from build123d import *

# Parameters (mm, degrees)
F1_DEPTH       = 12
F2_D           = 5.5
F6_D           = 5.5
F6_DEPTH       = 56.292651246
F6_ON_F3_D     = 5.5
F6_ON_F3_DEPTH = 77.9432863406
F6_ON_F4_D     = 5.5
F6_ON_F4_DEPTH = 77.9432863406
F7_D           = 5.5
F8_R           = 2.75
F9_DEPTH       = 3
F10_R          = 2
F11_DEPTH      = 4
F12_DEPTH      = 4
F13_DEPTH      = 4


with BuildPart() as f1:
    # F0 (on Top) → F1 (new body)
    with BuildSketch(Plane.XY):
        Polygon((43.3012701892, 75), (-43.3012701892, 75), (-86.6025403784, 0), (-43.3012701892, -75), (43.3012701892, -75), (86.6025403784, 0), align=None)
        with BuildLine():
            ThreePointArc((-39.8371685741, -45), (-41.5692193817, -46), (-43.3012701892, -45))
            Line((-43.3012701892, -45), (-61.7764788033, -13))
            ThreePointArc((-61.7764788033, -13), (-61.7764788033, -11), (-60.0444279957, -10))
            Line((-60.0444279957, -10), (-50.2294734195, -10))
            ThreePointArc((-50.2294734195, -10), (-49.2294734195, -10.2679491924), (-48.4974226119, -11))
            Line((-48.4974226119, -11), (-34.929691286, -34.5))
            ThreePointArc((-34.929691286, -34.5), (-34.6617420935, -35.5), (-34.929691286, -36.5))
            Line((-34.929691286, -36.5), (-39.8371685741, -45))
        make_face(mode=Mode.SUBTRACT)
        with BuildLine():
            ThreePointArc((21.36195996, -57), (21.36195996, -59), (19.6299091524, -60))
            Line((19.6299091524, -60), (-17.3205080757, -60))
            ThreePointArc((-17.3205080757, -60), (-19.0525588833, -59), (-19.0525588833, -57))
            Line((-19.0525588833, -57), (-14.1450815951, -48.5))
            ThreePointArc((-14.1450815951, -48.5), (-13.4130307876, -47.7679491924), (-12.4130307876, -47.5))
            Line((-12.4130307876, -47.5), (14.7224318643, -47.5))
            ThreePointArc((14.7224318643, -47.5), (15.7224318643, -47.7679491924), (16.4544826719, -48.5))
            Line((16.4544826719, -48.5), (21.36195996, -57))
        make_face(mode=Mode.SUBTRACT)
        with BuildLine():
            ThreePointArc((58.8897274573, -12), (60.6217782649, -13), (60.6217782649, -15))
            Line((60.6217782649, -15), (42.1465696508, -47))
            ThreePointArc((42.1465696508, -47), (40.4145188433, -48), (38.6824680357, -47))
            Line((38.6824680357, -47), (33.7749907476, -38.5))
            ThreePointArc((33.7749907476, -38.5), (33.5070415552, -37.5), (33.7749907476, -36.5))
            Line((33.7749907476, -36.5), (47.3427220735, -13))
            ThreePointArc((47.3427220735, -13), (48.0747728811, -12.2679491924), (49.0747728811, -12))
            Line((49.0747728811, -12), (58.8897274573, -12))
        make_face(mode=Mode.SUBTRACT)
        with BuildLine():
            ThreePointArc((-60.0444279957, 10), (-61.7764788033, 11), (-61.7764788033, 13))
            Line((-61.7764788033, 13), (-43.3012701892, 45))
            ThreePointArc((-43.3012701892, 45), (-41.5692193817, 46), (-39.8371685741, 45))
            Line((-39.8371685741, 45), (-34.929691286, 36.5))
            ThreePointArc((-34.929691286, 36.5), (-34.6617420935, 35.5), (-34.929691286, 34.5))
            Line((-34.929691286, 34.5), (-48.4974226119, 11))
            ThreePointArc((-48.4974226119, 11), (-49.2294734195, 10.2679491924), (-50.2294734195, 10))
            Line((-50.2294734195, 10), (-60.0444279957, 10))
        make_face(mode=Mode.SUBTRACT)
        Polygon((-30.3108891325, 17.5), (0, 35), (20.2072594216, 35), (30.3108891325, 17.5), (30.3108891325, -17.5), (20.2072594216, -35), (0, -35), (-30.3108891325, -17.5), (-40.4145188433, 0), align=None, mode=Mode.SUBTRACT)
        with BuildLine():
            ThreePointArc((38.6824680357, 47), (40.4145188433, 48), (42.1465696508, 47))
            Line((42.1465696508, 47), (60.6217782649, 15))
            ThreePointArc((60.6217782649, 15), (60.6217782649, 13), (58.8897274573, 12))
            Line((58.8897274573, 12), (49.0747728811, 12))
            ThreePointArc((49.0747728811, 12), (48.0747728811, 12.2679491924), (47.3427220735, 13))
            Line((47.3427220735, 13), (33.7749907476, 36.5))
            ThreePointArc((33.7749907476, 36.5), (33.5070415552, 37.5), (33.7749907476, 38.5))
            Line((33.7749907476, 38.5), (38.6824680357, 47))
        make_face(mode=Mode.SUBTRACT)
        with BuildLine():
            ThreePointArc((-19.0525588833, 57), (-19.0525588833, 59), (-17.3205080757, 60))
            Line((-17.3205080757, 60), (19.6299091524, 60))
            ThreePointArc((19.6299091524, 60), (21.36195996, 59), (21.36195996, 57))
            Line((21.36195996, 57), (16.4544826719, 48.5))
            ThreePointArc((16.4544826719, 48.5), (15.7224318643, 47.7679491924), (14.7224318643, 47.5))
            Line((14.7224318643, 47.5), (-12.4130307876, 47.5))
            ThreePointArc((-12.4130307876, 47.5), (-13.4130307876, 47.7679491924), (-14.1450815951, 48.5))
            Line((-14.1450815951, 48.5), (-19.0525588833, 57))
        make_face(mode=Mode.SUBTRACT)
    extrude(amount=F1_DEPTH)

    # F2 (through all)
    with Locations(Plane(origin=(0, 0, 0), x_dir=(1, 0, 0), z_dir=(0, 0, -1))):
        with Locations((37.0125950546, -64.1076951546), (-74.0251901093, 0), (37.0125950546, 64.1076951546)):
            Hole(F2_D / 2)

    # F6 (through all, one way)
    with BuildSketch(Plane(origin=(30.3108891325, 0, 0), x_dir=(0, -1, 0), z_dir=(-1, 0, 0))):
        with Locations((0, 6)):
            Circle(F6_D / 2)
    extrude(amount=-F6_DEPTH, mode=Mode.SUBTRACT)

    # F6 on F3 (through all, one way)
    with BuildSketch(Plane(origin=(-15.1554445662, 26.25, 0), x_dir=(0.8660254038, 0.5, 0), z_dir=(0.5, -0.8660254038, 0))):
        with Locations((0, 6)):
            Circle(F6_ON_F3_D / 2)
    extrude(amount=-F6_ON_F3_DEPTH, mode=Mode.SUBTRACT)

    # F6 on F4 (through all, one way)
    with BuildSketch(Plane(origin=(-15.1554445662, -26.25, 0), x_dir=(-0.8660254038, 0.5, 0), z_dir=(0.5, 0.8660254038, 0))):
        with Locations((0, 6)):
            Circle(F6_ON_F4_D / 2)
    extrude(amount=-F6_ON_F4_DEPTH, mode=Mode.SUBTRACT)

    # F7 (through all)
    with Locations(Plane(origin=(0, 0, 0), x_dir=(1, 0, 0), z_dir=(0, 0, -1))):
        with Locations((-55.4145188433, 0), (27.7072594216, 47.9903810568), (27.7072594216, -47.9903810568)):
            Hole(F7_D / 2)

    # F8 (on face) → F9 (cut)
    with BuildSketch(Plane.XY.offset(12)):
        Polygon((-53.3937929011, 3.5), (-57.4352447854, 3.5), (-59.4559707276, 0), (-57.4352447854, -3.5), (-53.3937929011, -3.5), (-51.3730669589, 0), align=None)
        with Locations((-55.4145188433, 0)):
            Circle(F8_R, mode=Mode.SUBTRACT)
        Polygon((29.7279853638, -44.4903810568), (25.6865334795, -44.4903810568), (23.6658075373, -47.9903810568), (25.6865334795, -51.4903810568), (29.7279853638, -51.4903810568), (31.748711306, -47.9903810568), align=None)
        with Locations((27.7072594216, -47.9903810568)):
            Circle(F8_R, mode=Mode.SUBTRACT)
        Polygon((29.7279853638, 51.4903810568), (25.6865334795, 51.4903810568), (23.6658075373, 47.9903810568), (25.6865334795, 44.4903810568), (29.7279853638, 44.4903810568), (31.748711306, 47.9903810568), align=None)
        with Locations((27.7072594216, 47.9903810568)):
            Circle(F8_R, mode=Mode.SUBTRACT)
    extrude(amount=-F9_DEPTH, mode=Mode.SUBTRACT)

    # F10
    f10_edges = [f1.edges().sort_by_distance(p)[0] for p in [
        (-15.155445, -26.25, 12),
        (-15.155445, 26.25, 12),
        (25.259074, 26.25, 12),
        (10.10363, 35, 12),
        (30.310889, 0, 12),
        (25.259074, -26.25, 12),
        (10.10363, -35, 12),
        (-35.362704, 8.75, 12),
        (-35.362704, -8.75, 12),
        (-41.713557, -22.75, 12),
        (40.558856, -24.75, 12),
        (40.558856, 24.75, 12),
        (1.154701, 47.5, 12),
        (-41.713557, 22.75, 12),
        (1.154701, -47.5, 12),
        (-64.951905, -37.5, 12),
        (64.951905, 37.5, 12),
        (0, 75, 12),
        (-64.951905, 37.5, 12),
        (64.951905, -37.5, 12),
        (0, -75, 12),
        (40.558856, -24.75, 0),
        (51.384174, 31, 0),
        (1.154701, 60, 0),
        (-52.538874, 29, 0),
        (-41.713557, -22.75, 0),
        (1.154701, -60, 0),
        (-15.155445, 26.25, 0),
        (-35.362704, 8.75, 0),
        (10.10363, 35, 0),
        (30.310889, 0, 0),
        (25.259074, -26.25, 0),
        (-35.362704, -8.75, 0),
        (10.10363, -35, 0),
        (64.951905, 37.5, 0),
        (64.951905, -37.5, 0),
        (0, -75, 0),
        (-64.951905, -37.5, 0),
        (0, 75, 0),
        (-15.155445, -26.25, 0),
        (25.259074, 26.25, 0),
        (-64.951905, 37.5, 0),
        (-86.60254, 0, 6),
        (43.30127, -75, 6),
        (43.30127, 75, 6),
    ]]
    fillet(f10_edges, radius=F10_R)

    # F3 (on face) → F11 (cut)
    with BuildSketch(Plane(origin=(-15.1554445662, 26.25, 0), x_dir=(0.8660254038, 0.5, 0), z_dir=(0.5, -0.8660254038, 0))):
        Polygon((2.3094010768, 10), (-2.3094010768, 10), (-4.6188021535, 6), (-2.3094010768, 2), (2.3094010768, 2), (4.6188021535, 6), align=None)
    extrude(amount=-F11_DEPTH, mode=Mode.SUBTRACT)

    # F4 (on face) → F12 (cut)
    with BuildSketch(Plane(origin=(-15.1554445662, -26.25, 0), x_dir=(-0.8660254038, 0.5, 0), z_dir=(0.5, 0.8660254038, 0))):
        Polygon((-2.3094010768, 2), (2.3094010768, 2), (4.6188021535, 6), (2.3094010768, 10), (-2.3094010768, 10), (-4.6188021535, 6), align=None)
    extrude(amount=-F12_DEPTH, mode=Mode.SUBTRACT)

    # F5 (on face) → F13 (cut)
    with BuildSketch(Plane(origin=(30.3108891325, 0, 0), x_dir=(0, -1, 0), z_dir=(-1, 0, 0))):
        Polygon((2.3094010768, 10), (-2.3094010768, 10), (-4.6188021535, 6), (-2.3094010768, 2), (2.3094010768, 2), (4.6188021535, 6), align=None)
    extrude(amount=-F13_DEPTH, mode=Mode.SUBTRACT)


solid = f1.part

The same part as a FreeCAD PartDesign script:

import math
import FreeCAD as App
import Part
import Sketcher

V = App.Vector
Q = App.Units.Quantity


def edges_at(feature, points):
    """Names of the edges that pass closest to the given points."""
    edges = feature.Shape.Edges
    near = lambda p: min(range(len(edges)), key=lambda i: edges[i].distToShape(Part.Vertex(*p))[0])
    return sorted({f"Edge{near(p) + 1}" for p in points})

doc = App.newDocument("Part")
body = doc.addObject("PartDesign::Body", "Body")

sketch1 = doc.addObject("Sketcher::SketchObject", "Sketch")
body.addObject(sketch1)
sketch1.AttachmentSupport = (doc.XY_Plane, [""])
sketch1.MapMode = "FlatFace"
sketch1.addGeometry([
    Part.LineSegment(V(43.3, 75, 0), V(-43.3, 75, 0)),
    Part.LineSegment(V(-43.3, 75, 0), V(-86.6, 0, 0)),
    Part.LineSegment(V(-86.6, 0, 0), V(-43.3, -75, 0)),
    Part.LineSegment(V(-43.3, -75, 0), V(43.3, -75, 0)),
    Part.LineSegment(V(43.3, -75, 0), V(86.6, 0, 0)),
    Part.LineSegment(V(86.6, 0, 0), V(43.3, 75, 0)),
    Part.LineSegment(V(-34.9, -36.5, 0), V(-39.8, -45, 0)),
    Part.ArcOfCircle(Part.Circle(V(-41.6, -44, 0), V(0, 0, 1), 2), math.radians(-150), math.radians(-30)),
    Part.LineSegment(V(-43.3, -45, 0), V(-61.8, -13, 0)),
    Part.ArcOfCircle(Part.Circle(V(-60, -12, 0), V(0, 0, 1), 2), math.radians(90), math.radians(210)),
    Part.LineSegment(V(-60, -10, 0), V(-50.2, -10, 0)),
    Part.ArcOfCircle(Part.Circle(V(-50.2, -12, 0), V(0, 0, 1), 2), math.radians(30), math.radians(90)),
    Part.LineSegment(V(-48.5, -11, 0), V(-34.9, -34.5, 0)),
    Part.ArcOfCircle(Part.Circle(V(-36.7, -35.5, 0), V(0, 0, 1), 2), math.radians(-30), math.radians(30)),
    Part.LineSegment(V(16.5, -48.5, 0), V(21.4, -57, 0)),
    Part.ArcOfCircle(Part.Circle(V(19.6, -58, 0), V(0, 0, 1), 2), math.radians(-90), math.radians(30)),
    Part.LineSegment(V(19.6, -60, 0), V(-17.3, -60, 0)),
    Part.ArcOfCircle(Part.Circle(V(-17.3, -58, 0), V(0, 0, 1), 2), math.radians(150), math.radians(270)),
    Part.LineSegment(V(-19.1, -57, 0), V(-14.1, -48.5, 0)),
    Part.ArcOfCircle(Part.Circle(V(-12.4, -49.5, 0), V(0, 0, 1), 2), math.radians(90), math.radians(150)),
    Part.LineSegment(V(-12.4, -47.5, 0), V(14.7, -47.5, 0)),
    Part.ArcOfCircle(Part.Circle(V(14.7, -49.5, 0), V(0, 0, 1), 2), math.radians(30), math.radians(90)),
    Part.LineSegment(V(49.1, -12, 0), V(58.9, -12, 0)),
    Part.ArcOfCircle(Part.Circle(V(58.9, -14, 0), V(0, 0, 1), 2), math.radians(-30), math.radians(90)),
    Part.LineSegment(V(60.6, -15, 0), V(42.1, -47, 0)),
    Part.ArcOfCircle(Part.Circle(V(40.4, -46, 0), V(0, 0, 1), 2), math.radians(-150), math.radians(-30)),
    Part.LineSegment(V(38.7, -47, 0), V(33.8, -38.5, 0)),
    Part.ArcOfCircle(Part.Circle(V(35.5, -37.5, 0), V(0, 0, 1), 2), math.radians(150), math.radians(210)),
    Part.LineSegment(V(33.8, -36.5, 0), V(47.3, -13, 0)),
    Part.ArcOfCircle(Part.Circle(V(49.1, -14, 0), V(0, 0, 1), 2), math.radians(90), math.radians(150)),
    Part.LineSegment(V(-50.2, 10, 0), V(-60, 10, 0)),
    Part.ArcOfCircle(Part.Circle(V(-60, 12, 0), V(0, 0, 1), 2), math.radians(150), math.radians(270)),
    Part.LineSegment(V(-61.8, 13, 0), V(-43.3, 45, 0)),
    Part.ArcOfCircle(Part.Circle(V(-41.6, 44, 0), V(0, 0, 1), 2), math.radians(30), math.radians(150)),
    Part.LineSegment(V(-39.8, 45, 0), V(-34.9, 36.5, 0)),
    Part.ArcOfCircle(Part.Circle(V(-36.7, 35.5, 0), V(0, 0, 1), 2), math.radians(-30), math.radians(30)),
    Part.LineSegment(V(-34.9, 34.5, 0), V(-48.5, 11, 0)),
    Part.ArcOfCircle(Part.Circle(V(-50.2, 12, 0), V(0, 0, 1), 2), math.radians(-90), math.radians(-30)),
    Part.LineSegment(V(-40.4, 0, 0), V(-30.3, 17.5, 0)),
    Part.LineSegment(V(-30.3, 17.5, 0), V(0, 35, 0)),
    Part.LineSegment(V(0, 35, 0), V(20.2, 35, 0)),
    Part.LineSegment(V(20.2, 35, 0), V(30.3, 17.5, 0)),
    Part.LineSegment(V(30.3, 17.5, 0), V(30.3, -17.5, 0)),
    Part.LineSegment(V(30.3, -17.5, 0), V(20.2, -35, 0)),
    Part.LineSegment(V(20.2, -35, 0), V(0, -35, 0)),
    Part.LineSegment(V(0, -35, 0), V(-30.3, -17.5, 0)),
    Part.LineSegment(V(-30.3, -17.5, 0), V(-40.4, 0, 0)),
    Part.LineSegment(V(-14.1, 48.5, 0), V(-19.1, 57, 0)),
    Part.ArcOfCircle(Part.Circle(V(-17.3, 58, 0), V(0, 0, 1), 2), math.radians(90), math.radians(210)),
    Part.LineSegment(V(-17.3, 60, 0), V(19.6, 60, 0)),
    Part.ArcOfCircle(Part.Circle(V(19.6, 58, 0), V(0, 0, 1), 2), math.radians(-30), math.radians(90)),
    Part.LineSegment(V(21.4, 57, 0), V(16.5, 48.5, 0)),
    Part.ArcOfCircle(Part.Circle(V(14.7, 49.5, 0), V(0, 0, 1), 2), math.radians(-90), math.radians(-30)),
    Part.LineSegment(V(14.7, 47.5, 0), V(-12.4, 47.5, 0)),
    Part.ArcOfCircle(Part.Circle(V(-12.4, 49.5, 0), V(0, 0, 1), 2), math.radians(-150), math.radians(-90)),
    Part.LineSegment(V(33.8, 38.5, 0), V(38.7, 47, 0)),
    Part.ArcOfCircle(Part.Circle(V(40.4, 46, 0), V(0, 0, 1), 2), math.radians(30), math.radians(150)),
    Part.LineSegment(V(42.1, 47, 0), V(60.6, 15, 0)),
    Part.ArcOfCircle(Part.Circle(V(58.9, 14, 0), V(0, 0, 1), 2), math.radians(-90), math.radians(30)),
    Part.LineSegment(V(58.9, 12, 0), V(49.1, 12, 0)),
    Part.ArcOfCircle(Part.Circle(V(49.1, 14, 0), V(0, 0, 1), 2), math.radians(-150), math.radians(-90)),
    Part.LineSegment(V(47.3, 13, 0), V(33.8, 36.5, 0)),
    Part.ArcOfCircle(Part.Circle(V(35.5, 37.5, 0), V(0, 0, 1), 2), math.radians(150), math.radians(210)),
], False)
sketch1.addConstraint([
    Sketcher.Constraint("Coincident", 0, 2, 1, 1),
    Sketcher.Constraint("Coincident", 1, 2, 2, 1),
    Sketcher.Constraint("Coincident", 2, 2, 3, 1),
    Sketcher.Constraint("Coincident", 3, 2, 4, 1),
    Sketcher.Constraint("Coincident", 4, 2, 5, 1),
    Sketcher.Constraint("Coincident", 5, 2, 0, 1),
    Sketcher.Constraint("Tangent", 6, 2, 7, 2),
    Sketcher.Constraint("Tangent", 7, 1, 8, 1),
    Sketcher.Constraint("Tangent", 8, 2, 9, 2),
    Sketcher.Constraint("Tangent", 9, 1, 10, 1),
    Sketcher.Constraint("Tangent", 10, 2, 11, 2),
    Sketcher.Constraint("Tangent", 11, 1, 12, 1),
    Sketcher.Constraint("Tangent", 12, 2, 13, 2),
    Sketcher.Constraint("Tangent", 13, 1, 6, 1),
    Sketcher.Constraint("Tangent", 14, 2, 15, 2),
    Sketcher.Constraint("Tangent", 15, 1, 16, 1),
    Sketcher.Constraint("Tangent", 16, 2, 17, 2),
    Sketcher.Constraint("Tangent", 17, 1, 18, 1),
    Sketcher.Constraint("Tangent", 18, 2, 19, 2),
    Sketcher.Constraint("Tangent", 19, 1, 20, 1),
    Sketcher.Constraint("Tangent", 20, 2, 21, 2),
    Sketcher.Constraint("Tangent", 21, 1, 14, 1),
    Sketcher.Constraint("Tangent", 22, 2, 23, 2),
    Sketcher.Constraint("Tangent", 23, 1, 24, 1),
    Sketcher.Constraint("Tangent", 24, 2, 25, 2),
    Sketcher.Constraint("Tangent", 25, 1, 26, 1),
    Sketcher.Constraint("Tangent", 26, 2, 27, 2),
    Sketcher.Constraint("Tangent", 27, 1, 28, 1),
    Sketcher.Constraint("Tangent", 28, 2, 29, 2),
    Sketcher.Constraint("Tangent", 29, 1, 22, 1),
    Sketcher.Constraint("Tangent", 30, 2, 31, 2),
    Sketcher.Constraint("Tangent", 31, 1, 32, 1),
    Sketcher.Constraint("Tangent", 32, 2, 33, 2),
    Sketcher.Constraint("Tangent", 33, 1, 34, 1),
    Sketcher.Constraint("Tangent", 34, 2, 35, 2),
    Sketcher.Constraint("Tangent", 35, 1, 36, 1),
    Sketcher.Constraint("Tangent", 36, 2, 37, 2),
    Sketcher.Constraint("Tangent", 37, 1, 30, 1),
    Sketcher.Constraint("Coincident", 38, 2, 39, 1),
    Sketcher.Constraint("Coincident", 39, 2, 40, 1),
    Sketcher.Constraint("Coincident", 40, 2, 41, 1),
    Sketcher.Constraint("Coincident", 41, 2, 42, 1),
    Sketcher.Constraint("Coincident", 42, 2, 43, 1),
    Sketcher.Constraint("Coincident", 43, 2, 44, 1),
    Sketcher.Constraint("Coincident", 44, 2, 45, 1),
    Sketcher.Constraint("Coincident", 45, 2, 46, 1),
    Sketcher.Constraint("Coincident", 46, 2, 38, 1),
    Sketcher.Constraint("Tangent", 47, 2, 48, 2),
    Sketcher.Constraint("Tangent", 48, 1, 49, 1),
    Sketcher.Constraint("Tangent", 49, 2, 50, 2),
    Sketcher.Constraint("Tangent", 50, 1, 51, 1),
    Sketcher.Constraint("Tangent", 51, 2, 52, 2),
    Sketcher.Constraint("Tangent", 52, 1, 53, 1),
    Sketcher.Constraint("Tangent", 53, 2, 54, 2),
    Sketcher.Constraint("Tangent", 54, 1, 47, 1),
    Sketcher.Constraint("Tangent", 55, 2, 56, 2),
    Sketcher.Constraint("Tangent", 56, 1, 57, 1),
    Sketcher.Constraint("Tangent", 57, 2, 58, 2),
    Sketcher.Constraint("Tangent", 58, 1, 59, 1),
    Sketcher.Constraint("Tangent", 59, 2, 60, 2),
    Sketcher.Constraint("Tangent", 60, 1, 61, 1),
    Sketcher.Constraint("Tangent", 61, 2, 62, 2),
    Sketcher.Constraint("Tangent", 62, 1, 55, 1),
    Sketcher.Constraint("Horizontal", 0),
    Sketcher.Constraint("Horizontal", 3),
    Sketcher.Constraint("Horizontal", 10),
    Sketcher.Constraint("Horizontal", 16),
    Sketcher.Constraint("Horizontal", 20),
    Sketcher.Constraint("Horizontal", 22),
    Sketcher.Constraint("Horizontal", 30),
    Sketcher.Constraint("Horizontal", 40),
    Sketcher.Constraint("Vertical", 42),
    Sketcher.Constraint("Horizontal", 44),
    Sketcher.Constraint("Horizontal", 49),
    Sketcher.Constraint("Horizontal", 53),
    Sketcher.Constraint("Horizontal", 59),
    Sketcher.Constraint("Equal", 7, 9),
    Sketcher.Constraint("Equal", 9, 11),
    Sketcher.Constraint("Equal", 11, 13),
    Sketcher.Constraint("Equal", 13, 15),
    Sketcher.Constraint("Equal", 15, 17),
    Sketcher.Constraint("Equal", 17, 19),
    Sketcher.Constraint("Equal", 19, 21),
    Sketcher.Constraint("Equal", 21, 23),
    Sketcher.Constraint("Equal", 23, 25),
    Sketcher.Constraint("Equal", 25, 27),
    Sketcher.Constraint("Equal", 27, 29),
    Sketcher.Constraint("Equal", 29, 31),
    Sketcher.Constraint("Equal", 31, 33),
    Sketcher.Constraint("Equal", 33, 35),
    Sketcher.Constraint("Equal", 35, 37),
    Sketcher.Constraint("Equal", 37, 48),
    Sketcher.Constraint("Equal", 48, 50),
    Sketcher.Constraint("Equal", 50, 52),
    Sketcher.Constraint("Equal", 52, 54),
    Sketcher.Constraint("Equal", 54, 56),
    Sketcher.Constraint("Equal", 56, 58),
    Sketcher.Constraint("Equal", 58, 60),
    Sketcher.Constraint("Equal", 60, 62),
    Sketcher.Constraint("Symmetric", 0, 2, 3, 2, -1, 1),
    Sketcher.Constraint("Symmetric", 1, 2, 4, 2, -1, 1),
    Sketcher.Constraint("Symmetric", 38, 2, 42, 2, -1, 1),
    Sketcher.Constraint("Symmetric", 39, 2, 44, 2, -1, 1),
    Sketcher.Constraint("Symmetric", 41, 2, 45, 2, -1, 1),
    Sketcher.Constraint("Symmetric", 9, 3, 31, 3, -1),
    Sketcher.Constraint("Symmetric", 7, 3, 33, 3, -1),
    Sketcher.Constraint("Symmetric", 13, 3, 35, 3, -1),
    Sketcher.Constraint("Symmetric", 17, 3, 48, 3, -1),
    Sketcher.Constraint("Symmetric", 21, 3, 52, 3, -1),
    Sketcher.Constraint("Symmetric", 25, 3, 56, 3, -1),
    Sketcher.Constraint("Symmetric", 23, 3, 58, 3, -1),
    Sketcher.Constraint("Symmetric", 27, 3, 62, 3, -1),
    Sketcher.Constraint("PointOnObject", 1, 2, -1),
    Sketcher.Constraint("PointOnObject", 39, 2, -2),
    Sketcher.Constraint("PointOnObject", 46, 2, -1),
    Sketcher.Constraint("Parallel", 2, 5),
    Sketcher.Constraint("Parallel", 4, 6),
    Sketcher.Constraint("Parallel", 5, 8),
    Sketcher.Constraint("Parallel", 8, 12),
    Sketcher.Constraint("Parallel", 12, 14),
    Sketcher.Constraint("Parallel", 6, 18),
    Sketcher.Constraint("Parallel", 18, 24),
    Sketcher.Constraint("Parallel", 14, 26),
    Sketcher.Constraint("Parallel", 24, 28),
    Sketcher.Constraint("Parallel", 28, 32),
    Sketcher.Constraint("Parallel", 32, 36),
    Sketcher.Constraint("Parallel", 36, 38),
    Sketcher.Constraint("Perpendicular", 34, 39),
    Sketcher.Constraint("Perpendicular", 39, 41),
    Sketcher.Constraint("Parallel", 38, 43),
    Sketcher.Constraint("Perpendicular", 43, 45),
    Sketcher.Constraint("Parallel", 46, 47),
    Sketcher.Constraint("Perpendicular", 45, 51),
    Sketcher.Constraint("Parallel", 57, 61),
    Sketcher.Constraint("Horizontal", 11, 3, 22, 2),
    Sketcher.Constraint("Horizontal", 13, 1, 27, 1),
    Sketcher.Constraint("Horizontal", 8, 2, 28, 2),
    Sketcher.Constraint("Vertical", 2, 2, 7, 1),
    Sketcher.Constraint("Equal", 10, 22),
    Sketcher.Constraint("Equal", 6, 14),
    Sketcher.Constraint("Equal", 38, 41),
    Sketcher.Constraint("Radius", 7, 2.0),
    Sketcher.Constraint("DistanceY", 42, 2, 42, 1, 35.0),
    Sketcher.Constraint("DistanceY", 7, 3, -1, 1, 44.0),
    Sketcher.Constraint("DistanceY", 9, 3, -1, 1, 12.0),
    Sketcher.Constraint("DistanceY", 15, 3, -1, 1, 58.0),
    Sketcher.Constraint("DistanceY", -1, 1, 0, 2, 75.0),
    Sketcher.Constraint("DistanceY", 13, 3, -1, 1, 35.5),
    Sketcher.Constraint("DistanceX", 0, 2, 0, 1, 86.60254),
    Sketcher.Constraint("DistanceX", 16, 2, 16, 1, 36.950417),
    Sketcher.Constraint("DistanceX", -1, 1, 15, 3, 19.629909),
    Sketcher.Constraint("DistanceX", -1, 1, 25, 3, 40.414519),
])
pad1 = doc.addObject("PartDesign::Pad", "Pad")
body.addObject(pad1)
pad1.Profile = sketch1
pad1.Length = 12

sketch2 = doc.addObject("Sketcher::SketchObject", "Sketch001")
body.addObject(sketch2)
sketch2.AttachmentSupport = (doc.XY_Plane, [""])
sketch2.MapMode = "FlatFace"
sketch2.addGeometry([
    Part.Circle(V(37, 64.1, 0), V(0, 0, 1), 2.8),
    Part.Circle(V(-74, 0, 0), V(0, 0, 1), 2.8),
    Part.Circle(V(37, -64.1, 0), V(0, 0, 1), 2.8),
], False)
sketch2.addConstraint([
    Sketcher.Constraint("Equal", 0, 1),
    Sketcher.Constraint("Equal", 1, 2),
    Sketcher.Constraint("Symmetric", 0, 3, 2, 3, -1),
    Sketcher.Constraint("PointOnObject", 1, 3, -1),
    Sketcher.Constraint("Diameter", 0, 5.5),
    Sketcher.Constraint("DistanceX", 1, 3, -1, 1, 74.02519),
    Sketcher.Constraint("DistanceY", 2, 3, 0, 3, 128.21539),
    Sketcher.Constraint("DistanceX", -1, 1, 0, 3, 37.012595),
])
doc.recompute()
hole = doc.addObject("PartDesign::Hole", "Hole")
body.addObject(hole)
hole.Profile = sketch2
hole.ThreadType = "None"
hole.Diameter = 5.5
hole.DepthType = "ThroughAll"
hole.Reversed = True

sketch3 = doc.addObject("Sketcher::SketchObject", "Sketch002")
body.addObject(sketch3)
sketch3.AttachmentSupport = (doc.YZ_Plane, [""])
sketch3.MapMode = "FlatFace"
sketch3.AttachmentOffset = App.Placement(V(0, 0, 30.310889), App.Rotation())
sketch3.addGeometry(Part.Circle(V(0, 6, 0), V(0, 0, 1), 2.8), False)
sketch3.addConstraint([
    Sketcher.Constraint("PointOnObject", 0, 3, -2),
    Sketcher.Constraint("Diameter", 0, 5.5),
    Sketcher.Constraint("DistanceY", -1, 1, 0, 3, 6.0),
])
pocket1 = doc.addObject("PartDesign::Pocket", "Pocket")
body.addObject(pocket1)
pocket1.Profile = sketch3
pocket1.Type = "ThroughAll"
pocket1.Reversed = True

sketch4 = doc.addObject("Sketcher::SketchObject", "Sketch003")
body.addObject(sketch4)
sketch4.Placement = App.Placement(V(-15.155445, 26.25, 0), App.Rotation(V(0.866025404, 0.5, 0), V(0, 0, 1), V(0.5, -0.866025404, 0), "ZXY"))
sketch4.addGeometry(Part.Circle(V(0, 6, 0), V(0, 0, 1), 2.8), False)
sketch4.addConstraint([
    Sketcher.Constraint("PointOnObject", 0, 3, -2),
    Sketcher.Constraint("Diameter", 0, 5.5),
    Sketcher.Constraint("DistanceY", -1, 1, 0, 3, 6.0),
])
pocket2 = doc.addObject("PartDesign::Pocket", "Pocket001")
body.addObject(pocket2)
pocket2.Profile = sketch4
pocket2.Type = "ThroughAll"

sketch5 = doc.addObject("Sketcher::SketchObject", "Sketch004")
body.addObject(sketch5)
sketch5.Placement = App.Placement(V(-15.155445, -26.25, 0), App.Rotation(V(-0.866025404, 0.5, 0), V(0, 0, 1), V(0.5, 0.866025404, 0), "ZXY"))
sketch5.addGeometry(Part.Circle(V(0, 6, 0), V(0, 0, 1), 2.8), False)
sketch5.addConstraint([
    Sketcher.Constraint("PointOnObject", 0, 3, -2),
    Sketcher.Constraint("Diameter", 0, 5.5),
    Sketcher.Constraint("DistanceY", -1, 1, 0, 3, 6.0),
])
pocket3 = doc.addObject("PartDesign::Pocket", "Pocket002")
body.addObject(pocket3)
pocket3.Profile = sketch5
pocket3.Type = "ThroughAll"

sketch6 = doc.addObject("Sketcher::SketchObject", "Sketch005")
body.addObject(sketch6)
sketch6.AttachmentSupport = (doc.XY_Plane, [""])
sketch6.MapMode = "FlatFace"
sketch6.addGeometry([
    Part.Circle(V(-55.4, 0, 0), V(0, 0, 1), 2.8),
    Part.Circle(V(27.7, -48, 0), V(0, 0, 1), 2.8),
    Part.Circle(V(27.7, 48, 0), V(0, 0, 1), 2.8),
], False)
sketch6.addConstraint([
    Sketcher.Constraint("Equal", 0, 1),
    Sketcher.Constraint("Equal", 1, 2),
    Sketcher.Constraint("Symmetric", 1, 3, 2, 3, -1),
    Sketcher.Constraint("PointOnObject", 0, 3, -1),
    Sketcher.Constraint("Diameter", 0, 5.5),
    Sketcher.Constraint("DistanceX", 0, 3, -1, 1, 55.414519),
    Sketcher.Constraint("DistanceX", -1, 1, 1, 3, 27.707259),
    Sketcher.Constraint("DistanceY", 1, 3, -1, 1, 47.990381),
])
doc.recompute()
hole2 = doc.addObject("PartDesign::Hole", "Hole001")
body.addObject(hole2)
hole2.Profile = sketch6
hole2.ThreadType = "None"
hole2.Diameter = 5.5
hole2.DepthType = "ThroughAll"
hole2.Reversed = True

sketch7 = doc.addObject("Sketcher::SketchObject", "Sketch006")
body.addObject(sketch7)
sketch7.AttachmentSupport = (doc.XY_Plane, [""])
sketch7.MapMode = "FlatFace"
sketch7.AttachmentOffset = App.Placement(V(0, 0, 12), App.Rotation())
sketch7.addGeometry([
    Part.LineSegment(V(-53.4, 3.5, 0), V(-57.4, 3.5, 0)),
    Part.LineSegment(V(-57.4, 3.5, 0), V(-59.5, 0, 0)),
    Part.LineSegment(V(-59.5, 0, 0), V(-57.4, -3.5, 0)),
    Part.LineSegment(V(-57.4, -3.5, 0), V(-53.4, -3.5, 0)),
    Part.LineSegment(V(-53.4, -3.5, 0), V(-51.4, 0, 0)),
    Part.LineSegment(V(-51.4, 0, 0), V(-53.4, 3.5, 0)),
    Part.Circle(V(-55.4, 0, 0), V(0, 0, 1), 2.8),
    Part.LineSegment(V(29.7, -44.5, 0), V(25.7, -44.5, 0)),
    Part.LineSegment(V(25.7, -44.5, 0), V(23.7, -48, 0)),
    Part.LineSegment(V(23.7, -48, 0), V(25.7, -51.5, 0)),
    Part.LineSegment(V(25.7, -51.5, 0), V(29.7, -51.5, 0)),
    Part.LineSegment(V(29.7, -51.5, 0), V(31.7, -48, 0)),
    Part.LineSegment(V(31.7, -48, 0), V(29.7, -44.5, 0)),
    Part.Circle(V(27.7, -48, 0), V(0, 0, 1), 2.8),
    Part.LineSegment(V(29.7, 51.5, 0), V(25.7, 51.5, 0)),
    Part.LineSegment(V(25.7, 51.5, 0), V(23.7, 48, 0)),
    Part.LineSegment(V(23.7, 48, 0), V(25.7, 44.5, 0)),
    Part.LineSegment(V(25.7, 44.5, 0), V(29.7, 44.5, 0)),
    Part.LineSegment(V(29.7, 44.5, 0), V(31.7, 48, 0)),
    Part.LineSegment(V(31.7, 48, 0), V(29.7, 51.5, 0)),
    Part.Circle(V(27.7, 48, 0), V(0, 0, 1), 2.8),
], False)
sketch7.addConstraint([
    Sketcher.Constraint("Coincident", 0, 2, 1, 1),
    Sketcher.Constraint("Coincident", 1, 2, 2, 1),
    Sketcher.Constraint("Coincident", 2, 2, 3, 1),
    Sketcher.Constraint("Coincident", 3, 2, 4, 1),
    Sketcher.Constraint("Coincident", 4, 2, 5, 1),
    Sketcher.Constraint("Coincident", 5, 2, 0, 1),
    Sketcher.Constraint("Coincident", 7, 2, 8, 1),
    Sketcher.Constraint("Coincident", 8, 2, 9, 1),
    Sketcher.Constraint("Coincident", 9, 2, 10, 1),
    Sketcher.Constraint("Coincident", 10, 2, 11, 1),
    Sketcher.Constraint("Coincident", 11, 2, 12, 1),
    Sketcher.Constraint("Coincident", 12, 2, 7, 1),
    Sketcher.Constraint("Coincident", 14, 2, 15, 1),
    Sketcher.Constraint("Coincident", 15, 2, 16, 1),
    Sketcher.Constraint("Coincident", 16, 2, 17, 1),
    Sketcher.Constraint("Coincident", 17, 2, 18, 1),
    Sketcher.Constraint("Coincident", 18, 2, 19, 1),
    Sketcher.Constraint("Coincident", 19, 2, 14, 1),
    Sketcher.Constraint("Horizontal", 0),
    Sketcher.Constraint("Horizontal", 3),
    Sketcher.Constraint("Horizontal", 7),
    Sketcher.Constraint("Horizontal", 10),
    Sketcher.Constraint("Horizontal", 14),
    Sketcher.Constraint("Horizontal", 17),
    Sketcher.Constraint("Equal", 6, 13),
    Sketcher.Constraint("Equal", 13, 20),
    Sketcher.Constraint("Symmetric", 13, 3, 20, 3, -1),
    Sketcher.Constraint("Symmetric", 0, 2, 2, 2, -1),
    Sketcher.Constraint("Symmetric", 9, 2, 14, 2, -1),
    Sketcher.Constraint("Symmetric", 8, 2, 15, 2, -1),
    Sketcher.Constraint("Symmetric", 7, 2, 16, 2, -1),
    Sketcher.Constraint("Symmetric", 11, 2, 18, 2, -1),
    Sketcher.Constraint("PointOnObject", 6, 3, -1),
    Sketcher.Constraint("PointOnObject", 1, 2, -1),
    Sketcher.Constraint("PointOnObject", 4, 2, -1),
    Sketcher.Constraint("Parallel", 1, 4),
    Sketcher.Constraint("Parallel", 2, 5),
    Sketcher.Constraint("Parallel", 4, 8),
    Sketcher.Constraint("Parallel", 5, 9),
    Sketcher.Constraint("Parallel", 8, 11),
    Sketcher.Constraint("Parallel", 9, 12),
    Sketcher.Constraint("Parallel", 15, 18),
    Sketcher.Constraint("Parallel", 16, 19),
    Sketcher.Constraint("Horizontal", 13, 3, 8, 2),
    Sketcher.Constraint("Horizontal", 8, 2, 11, 2),
    Sketcher.Constraint("Vertical", 7, 2, 9, 2),
    Sketcher.Constraint("Equal", 3, 7),
    Sketcher.Constraint("Equal", 5, 8),
    Sketcher.Constraint("Diameter", 6, 5.5),
    Sketcher.Constraint("Angle", 1, Q("-120 deg")),
    Sketcher.Constraint("DistanceY", 2, 2, 0, 2, 7.0),
    Sketcher.Constraint("DistanceX", 0, 2, 0, 1, 4.041452),
    Sketcher.Constraint("DistanceX", 4, 2, 7, 2, 77.0596),
    Sketcher.Constraint("DistanceX", 6, 3, -1, 1, 55.414519),
    Sketcher.Constraint("DistanceX", -1, 1, 13, 3, 27.707259),
    Sketcher.Constraint("DistanceY", 13, 3, -1, 1, 47.990381),
    Sketcher.Constraint("DistanceX", 1, 2, -1, 1, 59.455971),
])
pocket4 = doc.addObject("PartDesign::Pocket", "Pocket003")
body.addObject(pocket4)
pocket4.Profile = sketch7
pocket4.Length = 3
doc.recompute()

fillet = doc.addObject("PartDesign::Fillet", "Fillet")
body.addObject(fillet)
fillet.Base = (pocket4, edges_at(pocket4, [
    (-15.155, -26.25, 12),
    (-15.155, 26.25, 12),
    (25.259, 26.25, 12),
    (10.104, 35, 12),
    (30.311, 0, 12),
    (25.259, -26.25, 12),
    (10.104, -35, 12),
    (-35.363, 8.75, 12),
    (-35.363, -8.75, 12),
    (-41.714, -22.75, 12),
    (40.559, -24.75, 12),
    (40.559, 24.75, 12),
    (1.155, 47.5, 12),
    (-41.714, 22.75, 12),
    (1.155, -47.5, 12),
    (-64.952, -37.5, 12),
    (64.952, 37.5, 12),
    (0, 75, 12),
    (-64.952, 37.5, 12),
    (64.952, -37.5, 12),
    (0, -75, 12),
    (40.559, -24.75, 0),
    (51.384, 31, 0),
    (1.155, 60, 0),
    (-52.539, 29, 0),
    (-41.714, -22.75, 0),
    (1.155, -60, 0),
    (-15.155, 26.25, 0),
    (-35.363, 8.75, 0),
    (10.104, 35, 0),
    (30.311, 0, 0),
    (25.259, -26.25, 0),
    (-35.363, -8.75, 0),
    (10.104, -35, 0),
    (64.952, 37.5, 0),
    (64.952, -37.5, 0),
    (0, -75, 0),
    (-64.952, -37.5, 0),
    (0, 75, 0),
    (-15.155, -26.25, 0),
    (25.259, 26.25, 0),
    (-64.952, 37.5, 0),
    (-86.603, 0, 6),
    (43.301, -75, 6),
    (43.301, 75, 6),
]))
fillet.Radius = 2

sketch8 = doc.addObject("Sketcher::SketchObject", "Sketch007")
body.addObject(sketch8)
sketch8.Placement = App.Placement(V(-15.155445, 26.25, 0), App.Rotation(V(0.866025404, 0.5, 0), V(0, 0, 1), V(0.5, -0.866025404, 0), "ZXY"))
sketch8.addGeometry([
    Part.LineSegment(V(2.3, 10, 0), V(-2.3, 10, 0)),
    Part.LineSegment(V(-2.3, 10, 0), V(-4.6, 6, 0)),
    Part.LineSegment(V(-4.6, 6, 0), V(-2.3, 2, 0)),
    Part.LineSegment(V(-2.3, 2, 0), V(2.3, 2, 0)),
    Part.LineSegment(V(2.3, 2, 0), V(4.6, 6, 0)),
    Part.LineSegment(V(4.6, 6, 0), V(2.3, 10, 0)),
], False)
sketch8.addConstraint([
    Sketcher.Constraint("Coincident", 0, 2, 1, 1),
    Sketcher.Constraint("Coincident", 1, 2, 2, 1),
    Sketcher.Constraint("Coincident", 2, 2, 3, 1),
    Sketcher.Constraint("Coincident", 3, 2, 4, 1),
    Sketcher.Constraint("Coincident", 4, 2, 5, 1),
    Sketcher.Constraint("Coincident", 5, 2, 0, 1),
    Sketcher.Constraint("Horizontal", 0),
    Sketcher.Constraint("Horizontal", 3),
    Sketcher.Constraint("Symmetric", 1, 2, 4, 2, -2),
    Sketcher.Constraint("Parallel", 1, 4),
    Sketcher.Constraint("Parallel", 2, 5),
    Sketcher.Constraint("Vertical", 0, 2, 2, 2),
    Sketcher.Constraint("Vertical", 3, 2, 5, 2),
    Sketcher.Constraint("Angle", 1, Q("-120 deg")),
    Sketcher.Constraint("DistanceY", -1, 1, 0, 2, 10.0),
    Sketcher.Constraint("DistanceY", -1, 1, 1, 2, 6.0),
    Sketcher.Constraint("DistanceX", 0, 2, -1, 1, 2.309401),
])
pocket5 = doc.addObject("PartDesign::Pocket", "Pocket004")
body.addObject(pocket5)
pocket5.Profile = sketch8
pocket5.Length = 4

sketch9 = doc.addObject("Sketcher::SketchObject", "Sketch008")
body.addObject(sketch9)
sketch9.Placement = App.Placement(V(-15.155445, -26.25, 0), App.Rotation(V(-0.866025404, 0.5, 0), V(0, 0, 1), V(0.5, 0.866025404, 0), "ZXY"))
sketch9.addGeometry([
    Part.LineSegment(V(-2.3, 2, 0), V(2.3, 2, 0)),
    Part.LineSegment(V(2.3, 2, 0), V(4.6, 6, 0)),
    Part.LineSegment(V(4.6, 6, 0), V(2.3, 10, 0)),
    Part.LineSegment(V(2.3, 10, 0), V(-2.3, 10, 0)),
    Part.LineSegment(V(-2.3, 10, 0), V(-4.6, 6, 0)),
    Part.LineSegment(V(-4.6, 6, 0), V(-2.3, 2, 0)),
], False)
sketch9.addConstraint([
    Sketcher.Constraint("Coincident", 0, 2, 1, 1),
    Sketcher.Constraint("Coincident", 1, 2, 2, 1),
    Sketcher.Constraint("Coincident", 2, 2, 3, 1),
    Sketcher.Constraint("Coincident", 3, 2, 4, 1),
    Sketcher.Constraint("Coincident", 4, 2, 5, 1),
    Sketcher.Constraint("Coincident", 5, 2, 0, 1),
    Sketcher.Constraint("Horizontal", 0),
    Sketcher.Constraint("Horizontal", 3),
    Sketcher.Constraint("Symmetric", 1, 2, 4, 2, -2),
    Sketcher.Constraint("Parallel", 1, 4),
    Sketcher.Constraint("Parallel", 2, 5),
    Sketcher.Constraint("Vertical", 0, 2, 2, 2),
    Sketcher.Constraint("Vertical", 3, 2, 5, 2),
    Sketcher.Constraint("Angle", 1, Q("60 deg")),
    Sketcher.Constraint("DistanceY", -1, 1, 0, 2, 2.0),
    Sketcher.Constraint("DistanceY", -1, 1, 1, 2, 6.0),
    Sketcher.Constraint("DistanceX", -1, 1, 0, 2, 2.309401),
])
pocket6 = doc.addObject("PartDesign::Pocket", "Pocket005")
body.addObject(pocket6)
pocket6.Profile = sketch9
pocket6.Length = 4

sketch10 = doc.addObject("Sketcher::SketchObject", "Sketch009")
body.addObject(sketch10)
sketch10.AttachmentSupport = (doc.YZ_Plane, [""])
sketch10.MapMode = "FlatFace"
sketch10.AttachmentOffset = App.Placement(V(0, 0, 30.310889), App.Rotation())
sketch10.addGeometry([
    Part.LineSegment(V(-2.3, 10, 0), V(2.3, 10, 0)),
    Part.LineSegment(V(2.3, 10, 0), V(4.6, 6, 0)),
    Part.LineSegment(V(4.6, 6, 0), V(2.3, 2, 0)),
    Part.LineSegment(V(2.3, 2, 0), V(-2.3, 2, 0)),
    Part.LineSegment(V(-2.3, 2, 0), V(-4.6, 6, 0)),
    Part.LineSegment(V(-4.6, 6, 0), V(-2.3, 10, 0)),
], False)
sketch10.addConstraint([
    Sketcher.Constraint("Coincident", 0, 2, 1, 1),
    Sketcher.Constraint("Coincident", 1, 2, 2, 1),
    Sketcher.Constraint("Coincident", 2, 2, 3, 1),
    Sketcher.Constraint("Coincident", 3, 2, 4, 1),
    Sketcher.Constraint("Coincident", 4, 2, 5, 1),
    Sketcher.Constraint("Coincident", 5, 2, 0, 1),
    Sketcher.Constraint("Horizontal", 0),
    Sketcher.Constraint("Horizontal", 3),
    Sketcher.Constraint("Symmetric", 1, 2, 4, 2, -2),
    Sketcher.Constraint("Parallel", 1, 4),
    Sketcher.Constraint("Parallel", 2, 5),
    Sketcher.Constraint("Vertical", 0, 2, 2, 2),
    Sketcher.Constraint("Vertical", 3, 2, 5, 2),
    Sketcher.Constraint("Angle", 1, Q("-60 deg")),
    Sketcher.Constraint("DistanceY", -1, 1, 0, 2, 10.0),
    Sketcher.Constraint("DistanceY", -1, 1, 1, 2, 6.0),
    Sketcher.Constraint("DistanceX", -1, 1, 0, 2, 2.309401),
])
pocket7 = doc.addObject("PartDesign::Pocket", "Pocket006")
body.addObject(pocket7)
pocket7.Profile = sketch10
pocket7.Length = 4
pocket7.Reversed = True

doc.recompute()
